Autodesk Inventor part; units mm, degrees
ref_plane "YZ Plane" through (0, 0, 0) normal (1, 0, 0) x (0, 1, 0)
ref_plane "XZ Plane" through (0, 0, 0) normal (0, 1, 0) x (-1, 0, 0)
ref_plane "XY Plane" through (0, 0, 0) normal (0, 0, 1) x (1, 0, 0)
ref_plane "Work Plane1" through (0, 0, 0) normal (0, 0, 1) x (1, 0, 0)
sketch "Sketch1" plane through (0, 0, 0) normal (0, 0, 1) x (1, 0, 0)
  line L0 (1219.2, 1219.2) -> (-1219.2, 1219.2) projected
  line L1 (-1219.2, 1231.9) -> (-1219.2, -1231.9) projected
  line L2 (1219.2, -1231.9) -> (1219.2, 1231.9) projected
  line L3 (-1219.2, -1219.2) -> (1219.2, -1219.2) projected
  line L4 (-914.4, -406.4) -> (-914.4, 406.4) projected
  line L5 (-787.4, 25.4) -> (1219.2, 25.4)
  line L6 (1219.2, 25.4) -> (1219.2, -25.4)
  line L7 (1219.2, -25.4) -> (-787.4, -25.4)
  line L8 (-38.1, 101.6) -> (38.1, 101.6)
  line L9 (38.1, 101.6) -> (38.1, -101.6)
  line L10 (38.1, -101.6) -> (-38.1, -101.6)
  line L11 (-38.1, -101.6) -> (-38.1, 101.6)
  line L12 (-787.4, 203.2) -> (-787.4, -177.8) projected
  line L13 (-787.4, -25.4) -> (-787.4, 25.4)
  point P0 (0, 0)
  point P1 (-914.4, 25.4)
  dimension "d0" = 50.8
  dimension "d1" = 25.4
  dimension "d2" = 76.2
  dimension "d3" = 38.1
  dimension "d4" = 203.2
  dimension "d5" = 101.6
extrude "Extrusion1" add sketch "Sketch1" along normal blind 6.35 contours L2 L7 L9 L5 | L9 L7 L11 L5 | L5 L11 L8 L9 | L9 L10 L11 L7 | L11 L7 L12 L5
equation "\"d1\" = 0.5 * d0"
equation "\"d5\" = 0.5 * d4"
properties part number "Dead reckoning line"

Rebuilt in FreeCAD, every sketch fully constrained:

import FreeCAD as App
import Part
import Sketcher
Q = App.Units.Quantity

doc = App.newDocument("Part")
body = doc.addObject("PartDesign::Body", "Body")

# Sketch on XY plane
sketch1 = body.newObject("Sketcher::SketchObject", "Sketch")
sketch1.AttachmentSupport = (doc.getObject("XY_Plane"), [""])
sketch1.MapMode = "FlatFace"
sketch1.addGeometry([
    Part.LineSegment(App.Vector(1219, -25, 0), App.Vector(1219, 25, 0)),  # 0
    Part.LineSegment(App.Vector(1219, 25, 0), App.Vector(38, 25, 0)),  # 1
    Part.LineSegment(App.Vector(38, 25, 0), App.Vector(38, 102, 0)),  # 2
    Part.LineSegment(App.Vector(38, 102, 0), App.Vector(-38, 102, 0)),  # 3
    Part.LineSegment(App.Vector(-38, 102, 0), App.Vector(-38, 25, 0)),  # 4
    Part.LineSegment(App.Vector(-38, 25, 0), App.Vector(-787, 25, 0)),  # 5
    Part.LineSegment(App.Vector(-787, 25, 0), App.Vector(-787, -25, 0)),  # 6
    Part.LineSegment(App.Vector(-787, -25, 0), App.Vector(-38, -25, 0)),  # 7
    Part.LineSegment(App.Vector(-38, -25, 0), App.Vector(-38, -102, 0)),  # 8
    Part.LineSegment(App.Vector(-38, -102, 0), App.Vector(38, -102, 0)),  # 9
    Part.LineSegment(App.Vector(38, -102, 0), App.Vector(38, -25, 0)),  # 10
    Part.LineSegment(App.Vector(38, -25, 0), App.Vector(1219, -25, 0)),  # 11
], False)
sketch1.addConstraint([
    Sketcher.Constraint("Coincident", 0, 2, 1, 1),
    Sketcher.Constraint("Coincident", 1, 2, 2, 1),
    Sketcher.Constraint("Coincident", 2, 2, 3, 1),
    Sketcher.Constraint("Coincident", 3, 2, 4, 1),
    Sketcher.Constraint("Coincident", 4, 2, 5, 1),
    Sketcher.Constraint("Coincident", 5, 2, 6, 1),
    Sketcher.Constraint("Coincident", 6, 2, 7, 1),
    Sketcher.Constraint("Coincident", 7, 2, 8, 1),
    Sketcher.Constraint("Coincident", 8, 2, 9, 1),
    Sketcher.Constraint("Coincident", 9, 2, 10, 1),
    Sketcher.Constraint("Coincident", 10, 2, 11, 1),
    Sketcher.Constraint("Coincident", 11, 2, 0, 1),
    Sketcher.Constraint("Vertical", 0),
    Sketcher.Constraint("Horizontal", 1),
    Sketcher.Constraint("Vertical", 2),
    Sketcher.Constraint("Horizontal", 3),
    Sketcher.Constraint("Vertical", 4),
    Sketcher.Constraint("Horizontal", 5),
    Sketcher.Constraint("Vertical", 6),
    Sketcher.Constraint("Horizontal", 7),
    Sketcher.Constraint("Vertical", 8),
    Sketcher.Constraint("Horizontal", 9),
    Sketcher.Constraint("Vertical", 10),
    Sketcher.Constraint("Horizontal", 11),
    Sketcher.Constraint("Symmetric", 1, 2, 7, 2, -1, 1),
    Sketcher.Constraint("Symmetric", 3, 2, 9, 2, -1, 1),
    Sketcher.Constraint("Symmetric", 1, 2, 4, 2, -2),
    Sketcher.Constraint("Horizontal", 7, 2, 10, 2),
    Sketcher.Constraint("Equal", 9, 2),
    Sketcher.Constraint("DistanceX", 3, 2, 3, 1, Q("3 in")),
    Sketcher.Constraint("DistanceY", 0, 1, 0, 2, Q("2 in")),
    Sketcher.Constraint("DistanceX", 1, 2, 1, 1, Q("46.5 in")),
    Sketcher.Constraint("DistanceX", 5, 2, 5, 1, Q("29.5 in")),
])
pad1 = body.newObject("PartDesign::Pad", "Pad")
pad1.Profile = sketch1
pad1.Length = Q("0.25 in")

doc.recompute()
